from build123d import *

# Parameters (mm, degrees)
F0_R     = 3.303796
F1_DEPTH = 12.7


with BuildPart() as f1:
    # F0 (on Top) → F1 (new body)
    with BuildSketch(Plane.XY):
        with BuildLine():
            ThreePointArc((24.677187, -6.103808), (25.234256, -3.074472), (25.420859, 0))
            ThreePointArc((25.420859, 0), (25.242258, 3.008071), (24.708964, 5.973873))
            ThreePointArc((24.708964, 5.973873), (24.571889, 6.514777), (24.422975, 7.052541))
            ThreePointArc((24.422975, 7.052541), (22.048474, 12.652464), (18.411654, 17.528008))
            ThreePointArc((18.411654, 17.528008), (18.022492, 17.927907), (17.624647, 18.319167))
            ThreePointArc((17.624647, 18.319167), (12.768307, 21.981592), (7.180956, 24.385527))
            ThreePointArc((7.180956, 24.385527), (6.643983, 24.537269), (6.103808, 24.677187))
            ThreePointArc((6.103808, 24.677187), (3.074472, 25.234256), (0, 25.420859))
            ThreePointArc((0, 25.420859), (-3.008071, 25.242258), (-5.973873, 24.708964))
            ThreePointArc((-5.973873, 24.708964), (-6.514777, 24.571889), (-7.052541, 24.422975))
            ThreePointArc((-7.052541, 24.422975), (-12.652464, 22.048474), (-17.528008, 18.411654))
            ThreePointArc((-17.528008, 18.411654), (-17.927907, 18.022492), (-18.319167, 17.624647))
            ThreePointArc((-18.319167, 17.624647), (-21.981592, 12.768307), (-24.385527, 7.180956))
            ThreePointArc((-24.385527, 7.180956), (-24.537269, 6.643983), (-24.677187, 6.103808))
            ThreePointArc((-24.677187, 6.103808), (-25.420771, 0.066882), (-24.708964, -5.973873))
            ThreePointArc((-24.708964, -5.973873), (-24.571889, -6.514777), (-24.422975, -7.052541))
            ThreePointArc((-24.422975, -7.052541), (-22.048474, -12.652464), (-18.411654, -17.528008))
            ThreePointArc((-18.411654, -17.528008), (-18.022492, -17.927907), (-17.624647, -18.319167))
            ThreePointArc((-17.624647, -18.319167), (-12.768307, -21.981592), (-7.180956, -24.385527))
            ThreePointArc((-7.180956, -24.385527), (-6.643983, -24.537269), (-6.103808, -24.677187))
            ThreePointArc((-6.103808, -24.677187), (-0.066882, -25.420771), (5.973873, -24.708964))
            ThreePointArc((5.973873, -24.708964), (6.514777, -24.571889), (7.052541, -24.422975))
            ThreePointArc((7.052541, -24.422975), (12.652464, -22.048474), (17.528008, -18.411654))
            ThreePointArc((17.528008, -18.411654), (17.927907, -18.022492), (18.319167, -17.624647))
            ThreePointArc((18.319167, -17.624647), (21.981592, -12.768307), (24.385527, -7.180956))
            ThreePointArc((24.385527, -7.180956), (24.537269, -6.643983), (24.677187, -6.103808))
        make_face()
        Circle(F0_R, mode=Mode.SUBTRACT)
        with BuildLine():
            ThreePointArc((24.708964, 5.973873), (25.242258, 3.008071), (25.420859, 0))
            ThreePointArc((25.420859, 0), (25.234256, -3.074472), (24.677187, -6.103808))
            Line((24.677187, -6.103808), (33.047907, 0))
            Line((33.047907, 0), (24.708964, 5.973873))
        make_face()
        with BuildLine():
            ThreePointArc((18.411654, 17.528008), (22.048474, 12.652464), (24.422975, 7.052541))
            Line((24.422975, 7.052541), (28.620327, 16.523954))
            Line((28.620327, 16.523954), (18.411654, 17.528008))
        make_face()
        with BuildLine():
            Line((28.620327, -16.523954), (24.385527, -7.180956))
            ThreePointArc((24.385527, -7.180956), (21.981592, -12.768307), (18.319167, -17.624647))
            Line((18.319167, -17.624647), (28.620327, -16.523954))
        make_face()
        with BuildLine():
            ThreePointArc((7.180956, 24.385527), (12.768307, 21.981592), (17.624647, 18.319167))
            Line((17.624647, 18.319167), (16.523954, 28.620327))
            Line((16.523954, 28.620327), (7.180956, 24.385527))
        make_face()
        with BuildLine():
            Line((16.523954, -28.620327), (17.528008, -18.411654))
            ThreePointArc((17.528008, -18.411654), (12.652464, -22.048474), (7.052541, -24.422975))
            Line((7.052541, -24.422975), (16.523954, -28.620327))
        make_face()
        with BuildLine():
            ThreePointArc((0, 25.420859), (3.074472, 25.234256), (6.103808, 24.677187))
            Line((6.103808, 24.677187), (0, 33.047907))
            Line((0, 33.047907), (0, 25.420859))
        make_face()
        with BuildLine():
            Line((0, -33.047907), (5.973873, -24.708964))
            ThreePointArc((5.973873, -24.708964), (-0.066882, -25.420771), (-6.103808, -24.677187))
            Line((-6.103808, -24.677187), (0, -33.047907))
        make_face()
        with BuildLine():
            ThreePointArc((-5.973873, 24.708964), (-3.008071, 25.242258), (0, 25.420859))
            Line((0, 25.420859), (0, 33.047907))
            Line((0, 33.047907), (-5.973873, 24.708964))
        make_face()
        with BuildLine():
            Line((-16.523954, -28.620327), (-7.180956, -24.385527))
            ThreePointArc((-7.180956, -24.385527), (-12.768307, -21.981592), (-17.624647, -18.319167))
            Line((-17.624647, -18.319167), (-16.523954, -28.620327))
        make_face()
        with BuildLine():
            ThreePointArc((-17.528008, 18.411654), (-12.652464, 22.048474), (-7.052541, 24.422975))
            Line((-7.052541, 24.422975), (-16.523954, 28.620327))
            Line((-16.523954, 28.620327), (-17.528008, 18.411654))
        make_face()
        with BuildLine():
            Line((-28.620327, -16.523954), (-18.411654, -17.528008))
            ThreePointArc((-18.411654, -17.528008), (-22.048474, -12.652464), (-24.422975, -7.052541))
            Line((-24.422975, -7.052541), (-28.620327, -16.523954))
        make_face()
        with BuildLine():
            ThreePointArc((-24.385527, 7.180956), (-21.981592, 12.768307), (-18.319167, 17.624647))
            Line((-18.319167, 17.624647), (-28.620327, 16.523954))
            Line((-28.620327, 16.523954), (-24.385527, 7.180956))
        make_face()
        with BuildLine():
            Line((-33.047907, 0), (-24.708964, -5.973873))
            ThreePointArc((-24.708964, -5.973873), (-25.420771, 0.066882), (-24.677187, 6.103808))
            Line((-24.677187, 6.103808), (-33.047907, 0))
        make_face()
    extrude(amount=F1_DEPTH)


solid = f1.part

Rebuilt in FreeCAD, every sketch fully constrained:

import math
import FreeCAD as App
import Part
import Sketcher

V = App.Vector
Q = App.Units.Quantity

doc = App.newDocument("Part")
body = doc.addObject("PartDesign::Body", "Body")

# Sketch on XY plane
sketch1 = body.newObject("Sketcher::SketchObject", "Sketch")
sketch1.AttachmentSupport = (doc.getObject("XY_Plane"), [""])
sketch1.MapMode = "FlatFace"
sketch1.addGeometry(Part.ArcOfCircle(Part.Circle(V(0.0029, -0.000797, 0), V(0, 0, 1), 25.417851), math.radians(-16.408566), math.radians(-13.892871)), False)
sketch1.addGeometry(Part.LineSegment(V(24.677187, -6.103808, 0), V(33.047907, 0, 0)), False)
sketch1.addGeometry(Part.LineSegment(V(33.047907, 0, 0), V(24.708964, 5.973873, 0)), False)
sketch1.addGeometry(Part.ArcOfCircle(Part.Circle(V(-0.000243, -0.000073, 0), V(0, 0, 1), 25.421112), math.radians(13.591587), math.radians(16.10696)), False)
sketch1.addGeometry(Part.LineSegment(V(24.422975, 7.052541, 0), V(28.620327, 16.523954, 0)), False)
sketch1.addGeometry(Part.LineSegment(V(28.620327, 16.523954, 0), V(18.411654, 17.528008, 0)), False)
sketch1.addGeometry(Part.ArcOfCircle(Part.Circle(V(0.000166, 0.000161, 0), V(0, 0, 1), 25.420627), math.radians(43.591551), math.radians(46.106971)), False)
sketch1.addGeometry(Part.LineSegment(V(17.624647, 18.319167, 0), V(16.523954, 28.620327, 0)), False)
sketch1.addGeometry(Part.LineSegment(V(16.523954, 28.620327, 0), V(7.180956, 24.385527, 0)), False)
sketch1.addGeometry(Part.ArcOfCircle(Part.Circle(V(0.000797, 0.0029, 0), V(0, 0, 1), 25.417851), math.radians(73.591434), math.radians(76.107129)), False)
sketch1.addGeometry(Part.LineSegment(V(6.103808, 24.677187, 0), V(0, 33.047907, 0)), False)
sketch1.addGeometry(Part.LineSegment(V(0, 33.047907, 0), V(-5.973873, 24.708964, 0)), False)
sketch1.addGeometry(Part.ArcOfCircle(Part.Circle(V(0.000073, -0.000243, 0), V(0, 0, 1), 25.421112), math.radians(103.591587), math.radians(106.10696)), False)
sketch1.addGeometry(Part.LineSegment(V(-7.052541, 24.422975, 0), V(-16.523954, 28.620327, 0)), False)
sketch1.addGeometry(Part.LineSegment(V(-16.523954, 28.620327, 0), V(-17.528008, 18.411654, 0)), False)
sketch1.addGeometry(Part.ArcOfCircle(Part.Circle(V(-0.000161, 0.000166, 0), V(0, 0, 1), 25.420627), math.radians(133.591551), math.radians(136.106971)), False)
sketch1.addGeometry(Part.LineSegment(V(-18.319167, 17.624647, 0), V(-28.620327, 16.523954, 0)), False)
sketch1.addGeometry(Part.LineSegment(V(-28.620327, 16.523954, 0), V(-24.385527, 7.180956, 0)), False)
sketch1.addGeometry(Part.ArcOfCircle(Part.Circle(V(-0.0029, 0.000797, 0), V(0, 0, 1), 25.417851), math.radians(163.591434), math.radians(166.107129)), False)
sketch1.addGeometry(Part.LineSegment(V(-24.677187, 6.103808, 0), V(-33.047907, 0, 0)), False)
sketch1.addGeometry(Part.LineSegment(V(-33.047907, 0, 0), V(-24.708964, -5.973873, 0)), False)
sketch1.addGeometry(Part.ArcOfCircle(Part.Circle(V(0.000243, 0.000073, 0), V(0, 0, 1), 25.421112), math.radians(-166.408413), math.radians(-163.89304)), False)
sketch1.addGeometry(Part.LineSegment(V(-24.422975, -7.052541, 0), V(-28.620327, -16.523954, 0)), False)
sketch1.addGeometry(Part.LineSegment(V(-28.620327, -16.523954, 0), V(-18.411654, -17.528008, 0)), False)
sketch1.addGeometry(Part.ArcOfCircle(Part.Circle(V(-0.000166, -0.000161, 0), V(0, 0, 1), 25.420627), math.radians(-136.408449), math.radians(-133.893029)), False)
sketch1.addGeometry(Part.LineSegment(V(-17.624647, -18.319167, 0), V(-16.523954, -28.620327, 0)), False)
sketch1.addGeometry(Part.LineSegment(V(-16.523954, -28.620327, 0), V(-7.180956, -24.385527, 0)), False)
sketch1.addGeometry(Part.ArcOfCircle(Part.Circle(V(-0.000797, -0.0029, 0), V(0, 0, 1), 25.417851), math.radians(-106.408566), math.radians(-103.892871)), False)
sketch1.addGeometry(Part.LineSegment(V(-6.103808, -24.677187, 0), V(0, -33.047907, 0)), False)
sketch1.addGeometry(Part.LineSegment(V(0, -33.047907, 0), V(5.973873, -24.708964, 0)), False)
sketch1.addGeometry(Part.ArcOfCircle(Part.Circle(V(-0.000073, 0.000243, 0), V(0, 0, 1), 25.421112), math.radians(-76.408413), math.radians(-73.89304)), False)
sketch1.addGeometry(Part.LineSegment(V(7.052541, -24.422975, 0), V(16.523954, -28.620327, 0)), False)
sketch1.addGeometry(Part.LineSegment(V(16.523954, -28.620327, 0), V(17.528008, -18.411654, 0)), False)
sketch1.addGeometry(Part.ArcOfCircle(Part.Circle(V(0.000161, -0.000166, 0), V(0, 0, 1), 25.420627), math.radians(-46.408449), math.radians(-43.893029)), False)
sketch1.addGeometry(Part.LineSegment(V(18.319167, -17.624647, 0), V(28.620327, -16.523954, 0)), False)
sketch1.addGeometry(Part.LineSegment(V(28.620327, -16.523954, 0), V(24.385527, -7.180956, 0)), False)
sketch1.addGeometry(Part.Circle(V(0, 0, 0), V(0, 0, 1), 3.303796), False)
sketch1.addConstraint(Sketcher.Constraint("Coincident", 0, 2, 1, 1))
sketch1.addConstraint(Sketcher.Constraint("Coincident", 1, 2, 2, 1))
sketch1.addConstraint(Sketcher.Constraint("Coincident", 2, 2, 3, 1))
sketch1.addConstraint(Sketcher.Constraint("Coincident", 3, 2, 4, 1))
sketch1.addConstraint(Sketcher.Constraint("Coincident", 4, 2, 5, 1))
sketch1.addConstraint(Sketcher.Constraint("Coincident", 5, 2, 6, 1))
sketch1.addConstraint(Sketcher.Constraint("Coincident", 6, 2, 7, 1))
sketch1.addConstraint(Sketcher.Constraint("Coincident", 7, 2, 8, 1))
sketch1.addConstraint(Sketcher.Constraint("Coincident", 8, 2, 9, 1))
sketch1.addConstraint(Sketcher.Constraint("Coincident", 9, 2, 10, 1))
sketch1.addConstraint(Sketcher.Constraint("Coincident", 10, 2, 11, 1))
sketch1.addConstraint(Sketcher.Constraint("Coincident", 11, 2, 12, 1))
sketch1.addConstraint(Sketcher.Constraint("Coincident", 12, 2, 13, 1))
sketch1.addConstraint(Sketcher.Constraint("Coincident", 13, 2, 14, 1))
sketch1.addConstraint(Sketcher.Constraint("Coincident", 14, 2, 15, 1))
sketch1.addConstraint(Sketcher.Constraint("Coincident", 15, 2, 16, 1))
sketch1.addConstraint(Sketcher.Constraint("Coincident", 16, 2, 17, 1))
sketch1.addConstraint(Sketcher.Constraint("Coincident", 17, 2, 18, 1))
sketch1.addConstraint(Sketcher.Constraint("Coincident", 18, 2, 19, 1))
sketch1.addConstraint(Sketcher.Constraint("Coincident", 19, 2, 20, 1))
sketch1.addConstraint(Sketcher.Constraint("Coincident", 20, 2, 21, 1))
sketch1.addConstraint(Sketcher.Constraint("Coincident", 21, 2, 22, 1))
sketch1.addConstraint(Sketcher.Constraint("Coincident", 22, 2, 23, 1))
sketch1.addConstraint(Sketcher.Constraint("Coincident", 23, 2, 24, 1))
sketch1.addConstraint(Sketcher.Constraint("Coincident", 24, 2, 25, 1))
sketch1.addConstraint(Sketcher.Constraint("Coincident", 25, 2, 26, 1))
sketch1.addConstraint(Sketcher.Constraint("Coincident", 26, 2, 27, 1))
sketch1.addConstraint(Sketcher.Constraint("Coincident", 27, 2, 28, 1))
sketch1.addConstraint(Sketcher.Constraint("Coincident", 28, 2, 29, 1))
sketch1.addConstraint(Sketcher.Constraint("Coincident", 29, 2, 30, 1))
sketch1.addConstraint(Sketcher.Constraint("Coincident", 30, 2, 31, 1))
sketch1.addConstraint(Sketcher.Constraint("Coincident", 31, 2, 32, 1))
sketch1.addConstraint(Sketcher.Constraint("Coincident", 32, 2, 33, 1))
sketch1.addConstraint(Sketcher.Constraint("Coincident", 33, 2, 34, 1))
sketch1.addConstraint(Sketcher.Constraint("Coincident", 34, 2, 35, 1))
sketch1.addConstraint(Sketcher.Constraint("Coincident", 35, 2, 0, 1))
sketch1.addConstraint(Sketcher.Constraint("Coincident", 36, 3, -1, 1))
sketch1.addConstraint(Sketcher.Constraint("PointOnObject", 1, 2, -1))
sketch1.addConstraint(Sketcher.Constraint("PointOnObject", 10, 2, -2))
sketch1.addConstraint(Sketcher.Constraint("PointOnObject", 19, 2, -1))
sketch1.addConstraint(Sketcher.Constraint("PointOnObject", 28, 2, -2))
sketch1.addConstraint(Sketcher.Constraint("Radius", 0, Q("25.417851 mm")))
sketch1.addConstraint(Sketcher.Constraint("Radius", 3, Q("25.421112 mm")))
sketch1.addConstraint(Sketcher.Constraint("Radius", 9, Q("25.417851 mm")))
sketch1.addConstraint(Sketcher.Constraint("Radius", 12, Q("25.421112 mm")))
sketch1.addConstraint(Sketcher.Constraint("Radius", 18, Q("25.417851 mm")))
sketch1.addConstraint(Sketcher.Constraint("Radius", 21, Q("25.421112 mm")))
sketch1.addConstraint(Sketcher.Constraint("Radius", 27, Q("25.417851 mm")))
sketch1.addConstraint(Sketcher.Constraint("Radius", 30, Q("25.421112 mm")))
sketch1.addConstraint(Sketcher.Constraint("Diameter", 36, Q("6.607592 mm")))
sketch1.addConstraint(Sketcher.Constraint("Radius", 6, Q("25.420627 mm")))
sketch1.addConstraint(Sketcher.Constraint("Radius", 15, Q("25.420627 mm")))
sketch1.addConstraint(Sketcher.Constraint("Radius", 24, Q("25.420627 mm")))
sketch1.addConstraint(Sketcher.Constraint("Radius", 33, Q("25.420627 mm")))
sketch1.addConstraint(Sketcher.Constraint("Distance", 1, Q("10.359799 mm")))
sketch1.addConstraint(Sketcher.Constraint("Distance", 4, Q("10.359799 mm")))
sketch1.addConstraint(Sketcher.Constraint("Distance", 7, Q("10.359798 mm")))
sketch1.addConstraint(Sketcher.Constraint("Distance", 10, Q("10.359799 mm")))
sketch1.addConstraint(Sketcher.Constraint("Distance", 13, Q("10.359799 mm")))
sketch1.addConstraint(Sketcher.Constraint("Distance", 16, Q("10.359798 mm")))
sketch1.addConstraint(Sketcher.Constraint("Distance", 19, Q("10.359799 mm")))
sketch1.addConstraint(Sketcher.Constraint("Distance", 22, Q("10.359799 mm")))
sketch1.addConstraint(Sketcher.Constraint("Distance", 25, Q("10.359798 mm")))
sketch1.addConstraint(Sketcher.Constraint("Distance", 28, Q("10.359799 mm")))
sketch1.addConstraint(Sketcher.Constraint("Distance", 31, Q("10.359799 mm")))
sketch1.addConstraint(Sketcher.Constraint("Distance", 34, Q("10.359798 mm")))
sketch1.addConstraint(Sketcher.Constraint("DistanceX", -1, 1, 0, 3, Q("0.0029 mm")))
sketch1.addConstraint(Sketcher.Constraint("DistanceY", -1, 1, 9, 3, Q("0.0029 mm")))
sketch1.addConstraint(Sketcher.Constraint("DistanceX", 18, 3, -1, 1, Q("0.0029 mm")))
sketch1.addConstraint(Sketcher.Constraint("DistanceY", 27, 3, -1, 1, Q("0.0029 mm")))
sketch1.addConstraint(Sketcher.Constraint("DistanceY", 21, 3, 2, 2, Q("5.9738 mm")))
sketch1.addConstraint(Sketcher.Constraint("DistanceX", 7, 2, 5, 2, Q("1.8877 mm")))
sketch1.addConstraint(Sketcher.Constraint("DistanceY", 8, 2, 7, 2, Q("4.2348 mm")))
sketch1.addConstraint(Sketcher.Constraint("DistanceY", 5, 2, 10, 2, Q("15.519899 mm")))
sketch1.addConstraint(Sketcher.Constraint("DistanceY", 8, 2, 13, 2, Q("4.2348 mm")))
sketch1.addConstraint(Sketcher.Constraint("DistanceY", 16, 2, 14, 2, Q("1.8877 mm")))
sketch1.addConstraint(Sketcher.Constraint("DistanceX", 16, 2, 17, 2, Q("4.2348 mm")))
sketch1.addConstraint(Sketcher.Constraint("DistanceX", 19, 2, 14, 2, Q("15.519899 mm")))
sketch1.addConstraint(Sketcher.Constraint("DistanceX", 22, 2, 17, 2, Q("4.2348 mm")))
sketch1.addConstraint(Sketcher.Constraint("DistanceX", 23, 2, 25, 2, Q("1.8877 mm")))
sketch1.addConstraint(Sketcher.Constraint("DistanceY", 25, 2, 26, 2, Q("4.2348 mm")))
sketch1.addConstraint(Sketcher.Constraint("DistanceY", 28, 2, 23, 2, Q("15.519899 mm")))
sketch1.addConstraint(Sketcher.Constraint("DistanceY", 32, 2, 34, 2, Q("1.8877 mm")))
sketch1.addConstraint(Sketcher.Constraint("DistanceX", 35, 2, 34, 2, Q("4.2348 mm")))
sketch1.addConstraint(Sketcher.Constraint("Distance", 2, Q("10.25793 mm")))
sketch1.addConstraint(Sketcher.Constraint("Distance", 5, Q("10.25793 mm")))
sketch1.addConstraint(Sketcher.Constraint("Distance", 8, Q("10.257931 mm")))
sketch1.addConstraint(Sketcher.Constraint("Distance", 11, Q("10.25793 mm")))
sketch1.addConstraint(Sketcher.Constraint("Distance", 14, Q("10.25793 mm")))
sketch1.addConstraint(Sketcher.Constraint("Distance", 17, Q("10.257931 mm")))
sketch1.addConstraint(Sketcher.Constraint("Distance", 20, Q("10.25793 mm")))
sketch1.addConstraint(Sketcher.Constraint("Distance", 23, Q("10.25793 mm")))
sketch1.addConstraint(Sketcher.Constraint("Distance", 26, Q("10.257931 mm")))
sketch1.addConstraint(Sketcher.Constraint("Distance", 29, Q("10.25793 mm")))
sketch1.addConstraint(Sketcher.Constraint("Distance", 32, Q("10.25793 mm")))
sketch1.addConstraint(Sketcher.Constraint("Distance", 35, Q("10.257931 mm")))
sketch1.addConstraint(Sketcher.Constraint("DistanceY", -1, 1, 6, 3, Q("0.000161 mm")))
sketch1.addConstraint(Sketcher.Constraint("DistanceX", 15, 3, -1, 1, Q("0.000161 mm")))
sketch1.addConstraint(Sketcher.Constraint("DistanceY", 24, 3, -1, 1, Q("0.000161 mm")))
sketch1.addConstraint(Sketcher.Constraint("DistanceX", -1, 1, 33, 3, Q("0.000161 mm")))
sketch1.addConstraint(Sketcher.Constraint("DistanceY", -1, 1, 3, 2, Q("7.052541 mm")))
sketch1.addConstraint(Sketcher.Constraint("DistanceY", -1, 1, 5, 2, Q("17.528008 mm")))
sketch1.addConstraint(Sketcher.Constraint("DistanceX", 12, 2, -1, 1, Q("7.052541 mm")))
sketch1.addConstraint(Sketcher.Constraint("DistanceX", 14, 2, -1, 1, Q("17.528008 mm")))
sketch1.addConstraint(Sketcher.Constraint("DistanceY", 21, 2, -1, 1, Q("7.052541 mm")))
sketch1.addConstraint(Sketcher.Constraint("DistanceY", 23, 2, -1, 1, Q("17.528008 mm")))
sketch1.addConstraint(Sketcher.Constraint("DistanceX", -1, 1, 30, 2, Q("7.052541 mm")))
sketch1.addConstraint(Sketcher.Constraint("DistanceX", -1, 1, 32, 2, Q("17.528008 mm")))
sketch1.addConstraint(Sketcher.Constraint("DistanceX", 3, 3, 6, 3, Q("0.000409 mm")))
sketch1.addConstraint(Sketcher.Constraint("DistanceY", 0, 3, 6, 3, Q("0.000959 mm")))
sketch1.addConstraint(Sketcher.Constraint("DistanceX", 6, 3, 9, 3, Q("0.000631 mm")))
sketch1.addConstraint(Sketcher.Constraint("DistanceY", 12, 3, 3, 3, Q("0.00017 mm")))
sketch1.addConstraint(Sketcher.Constraint("DistanceY", 3, 3, 15, 3, Q("0.000239 mm")))
sketch1.addConstraint(Sketcher.Constraint("DistanceX", 15, 3, 9, 3, Q("0.000959 mm")))
sketch1.addConstraint(Sketcher.Constraint("DistanceY", 3, 3, 18, 3, Q("0.00087 mm")))
sketch1.addConstraint(Sketcher.Constraint("DistanceX", 12, 3, 21, 3, Q("0.00017 mm")))
sketch1.addConstraint(Sketcher.Constraint("DistanceY", 0, 3, 21, 3, Q("0.00087 mm")))
sketch1.addConstraint(Sketcher.Constraint("DistanceX", 24, 3, 12, 3, Q("0.000239 mm")))
sketch1.addConstraint(Sketcher.Constraint("DistanceX", 27, 3, 12, 3, Q("0.00087 mm")))
sketch1.addConstraint(Sketcher.Constraint("DistanceX", 30, 3, 6, 3, Q("0.000239 mm")))
sketch1.addConstraint(Sketcher.Constraint("DistanceY", 21, 3, 30, 3, Q("0.00017 mm")))
sketch1.addConstraint(Sketcher.Constraint("DistanceY", 33, 3, 21, 3, Q("0.000239 mm")))
pad1 = body.newObject("PartDesign::Pad", "Pad")
pad1.Profile = sketch1
pad1.Length = Q("0.5 in")

doc.recompute()
